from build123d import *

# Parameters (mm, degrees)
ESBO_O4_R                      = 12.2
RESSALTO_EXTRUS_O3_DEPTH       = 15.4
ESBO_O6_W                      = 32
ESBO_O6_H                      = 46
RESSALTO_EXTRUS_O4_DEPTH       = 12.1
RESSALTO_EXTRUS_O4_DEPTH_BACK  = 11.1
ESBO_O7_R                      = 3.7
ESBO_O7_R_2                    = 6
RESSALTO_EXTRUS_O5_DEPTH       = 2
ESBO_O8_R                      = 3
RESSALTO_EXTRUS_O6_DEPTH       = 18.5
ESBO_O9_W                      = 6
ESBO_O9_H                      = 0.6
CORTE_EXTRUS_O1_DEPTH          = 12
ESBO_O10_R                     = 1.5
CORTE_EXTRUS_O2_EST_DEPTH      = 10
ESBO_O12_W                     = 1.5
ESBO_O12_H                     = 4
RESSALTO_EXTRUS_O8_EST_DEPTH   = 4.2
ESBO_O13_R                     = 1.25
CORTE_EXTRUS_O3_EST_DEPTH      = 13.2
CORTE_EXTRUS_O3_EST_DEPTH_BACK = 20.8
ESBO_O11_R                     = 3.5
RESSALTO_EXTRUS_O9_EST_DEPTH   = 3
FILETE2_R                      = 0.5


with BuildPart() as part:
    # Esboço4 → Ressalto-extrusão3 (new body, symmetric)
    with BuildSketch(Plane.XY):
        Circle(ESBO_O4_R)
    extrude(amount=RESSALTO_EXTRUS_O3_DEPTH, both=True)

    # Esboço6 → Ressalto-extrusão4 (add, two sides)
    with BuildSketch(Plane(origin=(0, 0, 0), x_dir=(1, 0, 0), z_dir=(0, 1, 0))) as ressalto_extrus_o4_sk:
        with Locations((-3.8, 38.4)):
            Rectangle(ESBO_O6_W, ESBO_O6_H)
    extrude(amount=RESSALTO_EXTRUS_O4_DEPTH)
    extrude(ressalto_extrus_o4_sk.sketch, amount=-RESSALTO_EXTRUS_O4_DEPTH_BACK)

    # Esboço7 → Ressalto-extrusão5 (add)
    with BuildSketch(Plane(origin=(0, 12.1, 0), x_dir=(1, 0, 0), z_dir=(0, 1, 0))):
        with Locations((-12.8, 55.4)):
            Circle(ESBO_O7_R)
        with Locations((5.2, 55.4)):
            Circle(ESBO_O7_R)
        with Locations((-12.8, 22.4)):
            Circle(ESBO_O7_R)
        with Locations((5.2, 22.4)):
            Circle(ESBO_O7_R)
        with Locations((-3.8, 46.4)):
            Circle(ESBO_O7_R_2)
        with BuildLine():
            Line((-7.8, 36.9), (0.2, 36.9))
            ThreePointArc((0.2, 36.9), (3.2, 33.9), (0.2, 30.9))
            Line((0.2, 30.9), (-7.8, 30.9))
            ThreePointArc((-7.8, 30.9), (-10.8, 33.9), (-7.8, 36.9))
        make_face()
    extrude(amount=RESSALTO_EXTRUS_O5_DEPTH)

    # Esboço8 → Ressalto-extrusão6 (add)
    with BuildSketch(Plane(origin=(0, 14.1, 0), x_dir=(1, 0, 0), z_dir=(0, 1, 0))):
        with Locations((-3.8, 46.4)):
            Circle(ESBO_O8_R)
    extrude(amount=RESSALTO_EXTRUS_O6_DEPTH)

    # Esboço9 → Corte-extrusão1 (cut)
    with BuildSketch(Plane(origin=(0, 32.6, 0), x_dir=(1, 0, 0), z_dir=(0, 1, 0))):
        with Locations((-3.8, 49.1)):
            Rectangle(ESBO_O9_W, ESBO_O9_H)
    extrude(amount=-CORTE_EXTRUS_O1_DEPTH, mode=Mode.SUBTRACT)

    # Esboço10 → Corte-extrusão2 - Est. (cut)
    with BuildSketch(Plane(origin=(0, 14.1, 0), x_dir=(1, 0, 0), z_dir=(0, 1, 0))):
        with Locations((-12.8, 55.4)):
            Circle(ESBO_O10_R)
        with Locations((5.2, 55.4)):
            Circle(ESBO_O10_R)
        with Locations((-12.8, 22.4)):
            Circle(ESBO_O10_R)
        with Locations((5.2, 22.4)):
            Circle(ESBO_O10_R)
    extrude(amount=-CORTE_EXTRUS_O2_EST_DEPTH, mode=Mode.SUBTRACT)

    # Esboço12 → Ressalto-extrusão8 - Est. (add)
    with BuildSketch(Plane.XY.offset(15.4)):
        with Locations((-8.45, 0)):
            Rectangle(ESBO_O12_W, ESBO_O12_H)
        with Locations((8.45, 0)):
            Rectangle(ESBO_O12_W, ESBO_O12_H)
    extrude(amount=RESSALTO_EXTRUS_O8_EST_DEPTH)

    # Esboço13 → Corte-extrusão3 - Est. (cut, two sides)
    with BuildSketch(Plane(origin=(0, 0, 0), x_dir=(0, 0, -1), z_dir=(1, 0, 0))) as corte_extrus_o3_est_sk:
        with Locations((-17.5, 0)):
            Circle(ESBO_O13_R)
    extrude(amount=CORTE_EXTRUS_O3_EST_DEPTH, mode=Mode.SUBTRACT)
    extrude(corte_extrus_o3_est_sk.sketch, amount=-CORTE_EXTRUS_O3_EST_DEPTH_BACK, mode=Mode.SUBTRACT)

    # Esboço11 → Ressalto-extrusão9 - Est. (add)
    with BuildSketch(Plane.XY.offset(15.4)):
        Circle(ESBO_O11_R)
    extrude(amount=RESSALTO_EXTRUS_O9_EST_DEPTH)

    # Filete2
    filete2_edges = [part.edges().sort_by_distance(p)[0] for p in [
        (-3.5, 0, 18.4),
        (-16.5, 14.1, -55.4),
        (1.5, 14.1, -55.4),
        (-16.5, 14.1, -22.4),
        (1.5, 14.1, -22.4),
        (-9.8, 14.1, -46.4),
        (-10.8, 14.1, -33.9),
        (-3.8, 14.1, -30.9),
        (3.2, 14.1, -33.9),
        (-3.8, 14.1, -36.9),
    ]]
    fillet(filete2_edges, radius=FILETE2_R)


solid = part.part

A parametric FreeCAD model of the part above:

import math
import FreeCAD as App
import Part
import Sketcher

V = App.Vector


def edges_at(feature, points):
    """Names of the edges that pass closest to the given points."""
    edges = feature.Shape.Edges
    near = lambda p: min(range(len(edges)), key=lambda i: edges[i].distToShape(Part.Vertex(*p))[0])
    return sorted({f"Edge{near(p) + 1}" for p in points})

doc = App.newDocument("Part")
body = doc.addObject("PartDesign::Body", "Body")

# Sketch on XY plane
sketch1 = doc.addObject("Sketcher::SketchObject", "Sketch")
body.addObject(sketch1)
sketch1.AttachmentSupport = (doc.XY_Plane, [""])
sketch1.MapMode = "FlatFace"
sketch1.addGeometry(Part.Circle(V(0, 0, 0), V(0, 0, 1), 12), False)
sketch1.addConstraint([
    Sketcher.Constraint("Coincident", 0, 3, -1, 1),
    Sketcher.Constraint("Diameter", 0, 24.4),
])
pad1 = doc.addObject("PartDesign::Pad", "Pad")
body.addObject(pad1)
pad1.Profile = sketch1
pad1.Length = 30.8
pad1.Midplane = True

# Sketch on XZ plane
sketch2 = doc.addObject("Sketcher::SketchObject", "Sketch001")
body.addObject(sketch2)
sketch2.AttachmentSupport = (doc.XZ_Plane, [""])
sketch2.MapMode = "FlatFace"
sketch2.addGeometry([
    Part.LineSegment(V(-20, -61, 0), V(-20, -15, 0)),
    Part.LineSegment(V(-20, -15, 0), V(12, -15, 0)),
    Part.LineSegment(V(12, -15, 0), V(12, -61, 0)),
    Part.LineSegment(V(12, -61, 0), V(-20, -61, 0)),
], False)
sketch2.addConstraint([
    Sketcher.Constraint("Coincident", 0, 2, 1, 1),
    Sketcher.Constraint("Coincident", 1, 2, 2, 1),
    Sketcher.Constraint("Coincident", 2, 2, 3, 1),
    Sketcher.Constraint("Coincident", 3, 2, 0, 1),
    Sketcher.Constraint("Vertical", 0),
    Sketcher.Constraint("Horizontal", 1),
    Sketcher.Constraint("Vertical", 2),
    Sketcher.Constraint("Horizontal", 3),
    Sketcher.Constraint("DistanceX", 1, 1, 1, 2, 32.0),
    Sketcher.Constraint("DistanceY", 0, 1, 0, 2, 46.0),
    Sketcher.Constraint("DistanceX", 0, 2, -1, 1, 19.8),
    Sketcher.Constraint("DistanceY", 0, 2, -1, 1, 15.4),
])
pad2 = doc.addObject("PartDesign::Pad", "Pad001")
body.addObject(pad2)
pad2.Profile = sketch2
pad2.Type = "TwoLengths"
pad2.Length = 12.1
pad2.Length2 = 11.1
pad2.Reversed = True

# Sketch on XZ plane
sketch3 = doc.addObject("Sketcher::SketchObject", "Sketch002")
body.addObject(sketch3)
sketch3.AttachmentSupport = (doc.XZ_Plane, [""])
sketch3.MapMode = "FlatFace"
sketch3.AttachmentOffset = App.Placement(V(0, 0, -12.1), App.Rotation())
sketch3.addGeometry([
    Part.Circle(V(-12.8, -55.4, 0), V(0, 0, 1), 3.7),  # 0
    Part.Circle(V(5.2, -55.4, 0), V(0, 0, 1), 3.7),  # 1
    Part.Circle(V(-12.8, -22.4, 0), V(0, 0, 1), 3.7),  # 2
    Part.Circle(V(5.2, -22.4, 0), V(0, 0, 1), 3.7),  # 3
    Part.Circle(V(-3.8, -46.4, 0), V(0, 0, 1), 6),  # 4
    Part.LineSegment(V(0.2, -36.9, 0), V(-7.8, -36.9, 0)),  # 5
    Part.ArcOfCircle(Part.Circle(V(-7.8, -33.9, 0), V(0, 0, 1), 3), math.radians(90), math.radians(270)),  # 6
    Part.LineSegment(V(-7.8, -30.9, 0), V(0.2, -30.9, 0)),  # 7
    Part.ArcOfCircle(Part.Circle(V(0.2, -33.9, 0), V(0, 0, 1), 3), math.radians(-90), math.radians(90)),  # 8
], False)
sketch3.addConstraint([
    Sketcher.Constraint("Tangent", 5, 2, 6, 2),
    Sketcher.Constraint("Tangent", 6, 1, 7, 1),
    Sketcher.Constraint("Tangent", 7, 2, 8, 2),
    Sketcher.Constraint("Tangent", 8, 1, 5, 1),
    Sketcher.Constraint("Horizontal", 5),
    Sketcher.Constraint("Horizontal", 7),
    Sketcher.Constraint("Equal", 0, 1),
    Sketcher.Constraint("Equal", 1, 2),
    Sketcher.Constraint("Equal", 2, 3),
    Sketcher.Constraint("Horizontal", 0, 3, 1, 3),
    Sketcher.Constraint("Horizontal", 2, 3, 3, 3),
    Sketcher.Constraint("Vertical", 0, 3, 2, 3),
    Sketcher.Constraint("Vertical", 1, 3, 3, 3),
    Sketcher.Constraint("Diameter", 4, 12.0),
    Sketcher.Constraint("Radius", 6, 3.0),
    Sketcher.Constraint("Diameter", 0, 7.4),
    Sketcher.Constraint("DistanceX", 5, 2, 5, 1, 8.0),
    Sketcher.Constraint("DistanceX", 0, 3, 1, 3, 18.0),
    Sketcher.Constraint("DistanceY", 0, 3, 2, 3, 33.0),
    Sketcher.Constraint("DistanceX", 0, 3, 4, 3, 9.0),
    Sketcher.Constraint("DistanceY", 0, 3, 4, 3, 9.0),
    Sketcher.Constraint("DistanceX", 2, 3, 6, 3, 5.0),
    Sketcher.Constraint("DistanceX", 0, 3, -1, 1, 12.8),
    Sketcher.Constraint("DistanceY", 0, 3, -1, 1, 55.4),
    Sketcher.Constraint("DistanceY", 6, 3, -1, 1, 33.9),
])
pad3 = doc.addObject("PartDesign::Pad", "Pad002")
body.addObject(pad3)
pad3.Profile = sketch3
pad3.Length = 2
pad3.Reversed = True

# Sketch on XZ plane
sketch4 = doc.addObject("Sketcher::SketchObject", "Sketch003")
body.addObject(sketch4)
sketch4.AttachmentSupport = (doc.XZ_Plane, [""])
sketch4.MapMode = "FlatFace"
sketch4.AttachmentOffset = App.Placement(V(0, 0, -14.1), App.Rotation())
sketch4.addGeometry(Part.Circle(V(-3.8, -46.4, 0), V(0, 0, 1), 3), False)
sketch4.addConstraint([
    Sketcher.Constraint("Diameter", 0, 6.0),
    Sketcher.Constraint("DistanceX", 0, 3, -1, 1, 3.8),
    Sketcher.Constraint("DistanceY", 0, 3, -1, 1, 46.4),
])
pad4 = doc.addObject("PartDesign::Pad", "Pad003")
body.addObject(pad4)
pad4.Profile = sketch4
pad4.Length = 18.5
pad4.Reversed = True

# Sketch on XZ plane
sketch5 = doc.addObject("Sketcher::SketchObject", "Sketch004")
body.addObject(sketch5)
sketch5.AttachmentSupport = (doc.XZ_Plane, [""])
sketch5.MapMode = "FlatFace"
sketch5.AttachmentOffset = App.Placement(V(0, 0, -32.6), App.Rotation())
sketch5.addGeometry([
    Part.LineSegment(V(-6.8, -49.4, 0), V(-6.8, -48.8, 0)),
    Part.LineSegment(V(-6.8, -48.8, 0), V(-0.8, -48.8, 0)),
    Part.LineSegment(V(-0.8, -48.8, 0), V(-0.8, -49.4, 0)),
    Part.LineSegment(V(-0.8, -49.4, 0), V(-6.8, -49.4, 0)),
], False)
sketch5.addConstraint([
    Sketcher.Constraint("Coincident", 0, 2, 1, 1),
    Sketcher.Constraint("Coincident", 1, 2, 2, 1),
    Sketcher.Constraint("Coincident", 2, 2, 3, 1),
    Sketcher.Constraint("Coincident", 3, 2, 0, 1),
    Sketcher.Constraint("Vertical", 0),
    Sketcher.Constraint("Horizontal", 1),
    Sketcher.Constraint("Vertical", 2),
    Sketcher.Constraint("Horizontal", 3),
    Sketcher.Constraint("DistanceX", 1, 1, 1, 2, 6.0),
    Sketcher.Constraint("DistanceY", 0, 1, 0, 2, 0.6),
    Sketcher.Constraint("DistanceX", 0, 2, -1, 1, 6.8),
    Sketcher.Constraint("DistanceY", 0, 2, -1, 1, 48.8),
])
pocket1 = doc.addObject("PartDesign::Pocket", "Pocket")
body.addObject(pocket1)
pocket1.Profile = sketch5
pocket1.Length = 12
pocket1.Reversed = True

# Sketch on XZ plane
sketch6 = doc.addObject("Sketcher::SketchObject", "Sketch005")
body.addObject(sketch6)
sketch6.AttachmentSupport = (doc.XZ_Plane, [""])
sketch6.MapMode = "FlatFace"
sketch6.AttachmentOffset = App.Placement(V(0, 0, -14.1), App.Rotation())
sketch6.addGeometry([
    Part.Circle(V(-12.8, -55.4, 0), V(0, 0, 1), 1.5),
    Part.Circle(V(5.2, -55.4, 0), V(0, 0, 1), 1.5),
    Part.Circle(V(-12.8, -22.4, 0), V(0, 0, 1), 1.5),
    Part.Circle(V(5.2, -22.4, 0), V(0, 0, 1), 1.5),
], False)
sketch6.addConstraint([
    Sketcher.Constraint("Equal", 0, 1),
    Sketcher.Constraint("Equal", 1, 2),
    Sketcher.Constraint("Equal", 2, 3),
    Sketcher.Constraint("Horizontal", 0, 3, 1, 3),
    Sketcher.Constraint("Horizontal", 2, 3, 3, 3),
    Sketcher.Constraint("Vertical", 0, 3, 2, 3),
    Sketcher.Constraint("Vertical", 1, 3, 3, 3),
    Sketcher.Constraint("Diameter", 0, 3.0),
    Sketcher.Constraint("DistanceX", 0, 3, 1, 3, 18.0),
    Sketcher.Constraint("DistanceY", 0, 3, 2, 3, 33.0),
    Sketcher.Constraint("DistanceX", 0, 3, -1, 1, 12.8),
    Sketcher.Constraint("DistanceY", 0, 3, -1, 1, 55.4),
])
pocket2 = doc.addObject("PartDesign::Pocket", "Pocket001")
body.addObject(pocket2)
pocket2.Profile = sketch6
pocket2.Length = 10
pocket2.Reversed = True

# Sketch on XY plane
sketch7 = doc.addObject("Sketcher::SketchObject", "Sketch006")
body.addObject(sketch7)
sketch7.AttachmentSupport = (doc.XY_Plane, [""])
sketch7.MapMode = "FlatFace"
sketch7.AttachmentOffset = App.Placement(V(0, 0, 15.4), App.Rotation())
sketch7.addGeometry([
    Part.LineSegment(V(-9.2, 2, 0), V(-9.2, -2, 0)),  # 0
    Part.LineSegment(V(-9.2, -2, 0), V(-7.7, -2, 0)),  # 1
    Part.LineSegment(V(-7.7, -2, 0), V(-7.7, 2, 0)),  # 2
    Part.LineSegment(V(-7.7, 2, 0), V(-9.2, 2, 0)),  # 3
    Part.LineSegment(V(7.7, 2, 0), V(7.7, -2, 0)),  # 4
    Part.LineSegment(V(7.7, -2, 0), V(9.2, -2, 0)),  # 5
    Part.LineSegment(V(9.2, -2, 0), V(9.2, 2, 0)),  # 6
    Part.LineSegment(V(9.2, 2, 0), V(7.7, 2, 0)),  # 7
], False)
sketch7.addConstraint([
    Sketcher.Constraint("Coincident", 0, 2, 1, 1),
    Sketcher.Constraint("Coincident", 1, 2, 2, 1),
    Sketcher.Constraint("Coincident", 2, 2, 3, 1),
    Sketcher.Constraint("Coincident", 3, 2, 0, 1),
    Sketcher.Constraint("Coincident", 4, 2, 5, 1),
    Sketcher.Constraint("Coincident", 5, 2, 6, 1),
    Sketcher.Constraint("Coincident", 6, 2, 7, 1),
    Sketcher.Constraint("Coincident", 7, 2, 4, 1),
    Sketcher.Constraint("Vertical", 0),
    Sketcher.Constraint("Horizontal", 1),
    Sketcher.Constraint("Vertical", 2),
    Sketcher.Constraint("Horizontal", 3),
    Sketcher.Constraint("Vertical", 4),
    Sketcher.Constraint("Horizontal", 5),
    Sketcher.Constraint("Vertical", 6),
    Sketcher.Constraint("Horizontal", 7),
    Sketcher.Constraint("Symmetric", 2, 2, 4, 2, -1, 1),
    Sketcher.Constraint("Symmetric", 0, 2, 6, 2, -1, 1),
    Sketcher.Constraint("Horizontal", 1, 2, 4, 2),
    Sketcher.Constraint("DistanceY", 0, 2, 0, 1, 4.0),
    Sketcher.Constraint("DistanceX", 1, 1, 1, 2, 1.5),
    Sketcher.Constraint("DistanceX", 0, 2, -1, 1, 9.2),
])
pad5 = doc.addObject("PartDesign::Pad", "Pad004")
body.addObject(pad5)
pad5.Profile = sketch7
pad5.Length = 4.2

# Sketch on YZ plane
sketch8 = doc.addObject("Sketcher::SketchObject", "Sketch007")
body.addObject(sketch8)
sketch8.AttachmentSupport = (doc.YZ_Plane, [""])
sketch8.MapMode = "FlatFace"
sketch8.addGeometry(Part.Circle(V(0, 17.5, 0), V(0, 0, 1), 1.2), False)
sketch8.addConstraint([
    Sketcher.Constraint("PointOnObject", 0, 3, -2),
    Sketcher.Constraint("Diameter", 0, 2.5),
    Sketcher.Constraint("DistanceY", -1, 1, 0, 3, 17.5),
])
pocket3 = doc.addObject("PartDesign::Pocket", "Pocket002")
body.addObject(pocket3)
pocket3.Profile = sketch8
pocket3.Type = "ThroughAll"
pocket3.Midplane = True

# Sketch on XY plane
sketch9 = doc.addObject("Sketcher::SketchObject", "Sketch008")
body.addObject(sketch9)
sketch9.AttachmentSupport = (doc.XY_Plane, [""])
sketch9.MapMode = "FlatFace"
sketch9.AttachmentOffset = App.Placement(V(0, 0, 15.4), App.Rotation())
sketch9.addGeometry(Part.Circle(V(0, 0, 0), V(0, 0, 1), 3.5), False)
sketch9.addConstraint([
    Sketcher.Constraint("Coincident", 0, 3, -1, 1),
    Sketcher.Constraint("Diameter", 0, 7.0),
])
pad6 = doc.addObject("PartDesign::Pad", "Pad005")
body.addObject(pad6)
pad6.Profile = sketch9
pad6.Length = 3
doc.recompute()

fillet = doc.addObject("PartDesign::Fillet", "Fillet")
body.addObject(fillet)
fillet.Base = (pad6, edges_at(pad6, [
    (-3.5, 0, 18.4),
    (-16.5, 14.1, -55.4),
    (1.5, 14.1, -55.4),
    (-16.5, 14.1, -22.4),
    (1.5, 14.1, -22.4),
    (-9.8, 14.1, -46.4),
    (-10.8, 14.1, -33.9),
    (-3.8, 14.1, -30.9),
    (3.2, 14.1, -33.9),
    (-3.8, 14.1, -36.9),
]))
fillet.Radius = 0.5

doc.recompute()
